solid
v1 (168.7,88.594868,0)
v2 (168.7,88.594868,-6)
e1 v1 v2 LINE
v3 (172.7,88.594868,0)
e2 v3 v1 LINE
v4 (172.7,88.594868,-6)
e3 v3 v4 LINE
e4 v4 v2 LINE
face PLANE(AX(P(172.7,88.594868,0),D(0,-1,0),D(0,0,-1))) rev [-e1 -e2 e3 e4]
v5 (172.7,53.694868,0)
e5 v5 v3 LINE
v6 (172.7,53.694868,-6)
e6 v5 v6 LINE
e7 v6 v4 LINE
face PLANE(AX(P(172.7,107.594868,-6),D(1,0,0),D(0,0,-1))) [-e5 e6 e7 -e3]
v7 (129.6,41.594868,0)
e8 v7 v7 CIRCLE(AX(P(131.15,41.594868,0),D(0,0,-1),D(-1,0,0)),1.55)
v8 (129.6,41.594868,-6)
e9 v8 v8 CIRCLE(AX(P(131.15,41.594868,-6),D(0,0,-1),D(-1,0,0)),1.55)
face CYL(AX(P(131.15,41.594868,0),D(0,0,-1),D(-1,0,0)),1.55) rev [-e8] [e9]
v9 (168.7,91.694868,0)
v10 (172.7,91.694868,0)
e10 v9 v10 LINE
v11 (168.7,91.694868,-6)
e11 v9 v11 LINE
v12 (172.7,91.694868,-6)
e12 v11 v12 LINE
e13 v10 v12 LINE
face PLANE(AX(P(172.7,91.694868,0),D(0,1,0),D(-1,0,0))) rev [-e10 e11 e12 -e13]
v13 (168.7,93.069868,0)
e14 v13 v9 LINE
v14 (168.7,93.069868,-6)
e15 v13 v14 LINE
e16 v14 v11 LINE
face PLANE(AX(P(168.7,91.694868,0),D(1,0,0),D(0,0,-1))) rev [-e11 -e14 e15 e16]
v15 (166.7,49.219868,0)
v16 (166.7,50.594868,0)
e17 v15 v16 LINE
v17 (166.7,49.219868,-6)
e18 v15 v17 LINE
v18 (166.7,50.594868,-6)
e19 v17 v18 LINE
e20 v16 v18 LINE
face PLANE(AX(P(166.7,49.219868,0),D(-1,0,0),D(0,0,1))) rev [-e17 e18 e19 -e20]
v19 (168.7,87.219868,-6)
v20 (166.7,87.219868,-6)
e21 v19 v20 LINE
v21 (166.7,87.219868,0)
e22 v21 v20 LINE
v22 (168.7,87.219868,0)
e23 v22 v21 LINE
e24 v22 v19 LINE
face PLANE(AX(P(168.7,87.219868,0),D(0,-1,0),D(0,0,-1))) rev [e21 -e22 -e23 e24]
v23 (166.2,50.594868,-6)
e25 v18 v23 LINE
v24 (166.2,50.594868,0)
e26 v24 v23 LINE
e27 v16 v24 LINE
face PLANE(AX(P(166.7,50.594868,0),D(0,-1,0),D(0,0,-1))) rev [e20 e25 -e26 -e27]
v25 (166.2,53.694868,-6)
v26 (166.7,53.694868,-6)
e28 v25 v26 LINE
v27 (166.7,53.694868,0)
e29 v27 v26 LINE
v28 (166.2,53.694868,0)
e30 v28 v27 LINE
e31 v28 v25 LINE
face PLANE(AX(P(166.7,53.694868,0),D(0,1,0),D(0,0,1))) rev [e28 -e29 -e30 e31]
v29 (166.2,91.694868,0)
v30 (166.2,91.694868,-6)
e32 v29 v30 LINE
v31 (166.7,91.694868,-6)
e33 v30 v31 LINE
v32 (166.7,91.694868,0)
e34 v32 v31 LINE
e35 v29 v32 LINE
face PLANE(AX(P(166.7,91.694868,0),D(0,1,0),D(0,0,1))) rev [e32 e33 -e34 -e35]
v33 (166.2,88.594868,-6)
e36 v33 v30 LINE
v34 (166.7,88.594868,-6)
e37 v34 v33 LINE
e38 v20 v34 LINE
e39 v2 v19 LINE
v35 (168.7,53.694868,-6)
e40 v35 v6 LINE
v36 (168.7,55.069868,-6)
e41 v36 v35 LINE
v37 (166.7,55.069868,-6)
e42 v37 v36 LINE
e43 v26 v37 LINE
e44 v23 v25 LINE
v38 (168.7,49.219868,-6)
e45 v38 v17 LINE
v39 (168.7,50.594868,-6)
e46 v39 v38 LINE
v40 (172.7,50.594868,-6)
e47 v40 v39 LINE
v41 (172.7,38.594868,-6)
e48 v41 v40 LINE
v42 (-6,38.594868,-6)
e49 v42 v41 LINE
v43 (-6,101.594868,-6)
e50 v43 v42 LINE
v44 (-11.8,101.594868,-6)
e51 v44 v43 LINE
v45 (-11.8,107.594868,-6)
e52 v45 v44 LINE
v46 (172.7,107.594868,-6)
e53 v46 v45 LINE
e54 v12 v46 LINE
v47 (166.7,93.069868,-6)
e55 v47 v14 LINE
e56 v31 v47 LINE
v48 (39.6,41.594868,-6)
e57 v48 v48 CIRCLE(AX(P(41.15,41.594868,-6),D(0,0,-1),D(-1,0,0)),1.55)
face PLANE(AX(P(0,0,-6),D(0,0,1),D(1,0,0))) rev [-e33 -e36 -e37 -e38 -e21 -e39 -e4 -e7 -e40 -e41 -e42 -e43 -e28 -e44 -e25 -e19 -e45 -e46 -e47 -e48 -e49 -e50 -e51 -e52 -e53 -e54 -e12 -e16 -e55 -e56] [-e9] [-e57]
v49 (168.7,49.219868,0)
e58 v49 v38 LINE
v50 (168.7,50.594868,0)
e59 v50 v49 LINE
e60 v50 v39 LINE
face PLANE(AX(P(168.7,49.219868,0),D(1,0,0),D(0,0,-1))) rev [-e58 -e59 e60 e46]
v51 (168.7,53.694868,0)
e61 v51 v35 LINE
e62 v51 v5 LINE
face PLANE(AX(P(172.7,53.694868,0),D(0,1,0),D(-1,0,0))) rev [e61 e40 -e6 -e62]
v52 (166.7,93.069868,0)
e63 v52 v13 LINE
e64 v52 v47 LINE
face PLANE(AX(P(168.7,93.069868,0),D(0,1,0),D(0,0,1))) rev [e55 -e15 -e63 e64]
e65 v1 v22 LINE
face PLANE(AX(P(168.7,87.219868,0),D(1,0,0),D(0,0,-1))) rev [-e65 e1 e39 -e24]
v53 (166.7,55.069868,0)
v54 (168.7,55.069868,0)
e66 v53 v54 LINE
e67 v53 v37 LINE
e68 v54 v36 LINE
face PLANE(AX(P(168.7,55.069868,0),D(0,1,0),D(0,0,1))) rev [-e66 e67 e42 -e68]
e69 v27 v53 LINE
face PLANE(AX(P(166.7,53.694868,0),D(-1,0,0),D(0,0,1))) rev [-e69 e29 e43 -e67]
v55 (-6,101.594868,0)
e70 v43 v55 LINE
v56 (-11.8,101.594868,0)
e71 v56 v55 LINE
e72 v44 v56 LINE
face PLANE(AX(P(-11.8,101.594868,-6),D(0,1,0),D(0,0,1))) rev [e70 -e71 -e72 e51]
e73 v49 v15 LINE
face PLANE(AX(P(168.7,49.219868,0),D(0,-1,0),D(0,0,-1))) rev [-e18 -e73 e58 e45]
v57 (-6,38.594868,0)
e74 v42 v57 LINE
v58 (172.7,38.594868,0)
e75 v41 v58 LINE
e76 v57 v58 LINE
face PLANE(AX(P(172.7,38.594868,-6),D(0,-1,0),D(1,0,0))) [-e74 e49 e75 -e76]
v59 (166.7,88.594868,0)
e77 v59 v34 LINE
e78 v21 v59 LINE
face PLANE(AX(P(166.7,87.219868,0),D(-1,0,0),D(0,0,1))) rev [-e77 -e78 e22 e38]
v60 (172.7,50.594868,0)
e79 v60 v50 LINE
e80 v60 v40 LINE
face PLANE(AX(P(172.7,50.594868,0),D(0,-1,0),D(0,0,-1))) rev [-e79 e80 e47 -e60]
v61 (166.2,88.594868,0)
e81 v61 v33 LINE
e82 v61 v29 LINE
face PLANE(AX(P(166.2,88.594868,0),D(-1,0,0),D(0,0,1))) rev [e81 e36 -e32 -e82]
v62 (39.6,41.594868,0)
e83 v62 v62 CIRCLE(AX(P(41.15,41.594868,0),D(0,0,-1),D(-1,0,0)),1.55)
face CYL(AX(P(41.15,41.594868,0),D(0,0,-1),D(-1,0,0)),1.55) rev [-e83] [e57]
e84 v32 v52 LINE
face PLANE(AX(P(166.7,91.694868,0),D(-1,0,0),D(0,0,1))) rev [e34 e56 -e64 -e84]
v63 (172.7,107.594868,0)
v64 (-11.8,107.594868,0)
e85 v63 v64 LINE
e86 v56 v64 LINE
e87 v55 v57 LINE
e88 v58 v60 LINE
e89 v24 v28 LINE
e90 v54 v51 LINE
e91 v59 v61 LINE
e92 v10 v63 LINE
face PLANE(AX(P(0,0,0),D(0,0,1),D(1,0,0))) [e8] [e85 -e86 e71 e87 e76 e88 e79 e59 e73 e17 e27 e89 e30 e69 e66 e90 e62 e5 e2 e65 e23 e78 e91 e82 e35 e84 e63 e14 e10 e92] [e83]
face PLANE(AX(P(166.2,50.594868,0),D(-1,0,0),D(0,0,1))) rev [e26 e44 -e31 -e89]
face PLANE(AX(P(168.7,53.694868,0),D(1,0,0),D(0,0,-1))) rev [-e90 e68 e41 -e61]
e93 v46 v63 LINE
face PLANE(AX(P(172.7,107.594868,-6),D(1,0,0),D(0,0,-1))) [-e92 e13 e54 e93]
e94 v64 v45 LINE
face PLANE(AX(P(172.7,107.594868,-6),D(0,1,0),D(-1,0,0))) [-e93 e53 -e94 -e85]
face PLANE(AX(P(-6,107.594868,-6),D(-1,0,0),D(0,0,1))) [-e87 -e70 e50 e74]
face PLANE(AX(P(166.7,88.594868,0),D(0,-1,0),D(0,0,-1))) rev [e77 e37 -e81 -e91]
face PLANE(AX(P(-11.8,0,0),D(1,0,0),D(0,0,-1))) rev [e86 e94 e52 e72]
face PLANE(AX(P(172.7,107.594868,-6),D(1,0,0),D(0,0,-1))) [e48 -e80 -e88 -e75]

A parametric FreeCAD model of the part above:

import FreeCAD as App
import Part
import Sketcher
from FreeCAD import Vector
Q = App.Units.Quantity


def add_polygon(sketch, points):
    """Adds a closed chain of lines whose ends are joined by coincident constraints."""
    first, n = sketch.GeometryCount, len(points)
    for a, b in zip(points, points[1:] + points[:1]):
        sketch.addGeometry(Part.LineSegment(App.Vector(*a, 0), App.Vector(*b, 0)), False)
    for i in range(n):
        sketch.addConstraint(Sketcher.Constraint("Coincident", first + i, 2, first + (i + 1) % n, 1))

doc = App.newDocument("Part")
body = doc.addObject("PartDesign::Body", "Body")

# Sketch on XY plane
sketch1 = doc.addObject("Sketcher::SketchObject", "Sketch")
body.addObject(sketch1)
sketch1.AttachmentSupport = (doc.XY_Plane, [""])
sketch1.MapMode = "FlatFace"
add_polygon(sketch1, [(-6, 107.594868), (-6, 38.594868), (172.7, 38.594868), (172.7, 107.594868)])  # lines 0-3
sketch1.addConstraint([
    Sketcher.Constraint("Vertical", 0),
    Sketcher.Constraint("Horizontal", 1),
    Sketcher.Constraint("Vertical", 2),
    Sketcher.Constraint("Horizontal", 3),
    Sketcher.Constraint("DistanceY", 0, 2, 0, 1, Q("69 mm")),
    Sketcher.Constraint("DistanceX", 1, 1, 1, 2, Q("178.7 mm")),
    Sketcher.Constraint("DistanceX", 0, 2, -1, 1, Q("6 mm")),
    Sketcher.Constraint("DistanceY", -1, 1, 0, 2, Q("38.594868 mm")),
])
pad1 = doc.addObject("PartDesign::Pad", "Pad")
body.addObject(pad1)
pad1.Profile = sketch1
pad1.Length = 6
pad1.Reversed = True

# Sketch on XY plane
sketch2 = doc.addObject("Sketcher::SketchObject", "Sketch001")
body.addObject(sketch2)
sketch2.AttachmentSupport = (doc.XY_Plane, [""])
sketch2.MapMode = "FlatFace"
sketch2.AttachmentOffset = App.Placement(Vector(0, 0, -6), App.Rotation())
sketch2.addGeometry([
    Part.Circle(Vector(41.15, 41.594868, 0), Vector(0, 0, 1), 1.55),
    Part.Circle(Vector(131.15, 41.594868, 0), Vector(0, 0, 1), 1.55),
], False)
sketch2.addConstraint([
    Sketcher.Constraint("Equal", 0, 1),
    Sketcher.Constraint("Horizontal", 0, 3, 1, 3),
    Sketcher.Constraint("Diameter", 0, Q("3.1 mm")),
    Sketcher.Constraint("DistanceX", 0, 3, 1, 3, Q("90 mm")),
    Sketcher.Constraint("DistanceX", -1, 1, 0, 3, Q("41.15 mm")),
    Sketcher.Constraint("DistanceY", -1, 1, 0, 3, Q("41.594868 mm")),
])
pocket1 = doc.addObject("PartDesign::Pocket", "Pocket")
body.addObject(pocket1)
pocket1.Profile = sketch2
pocket1.Type = "ThroughAll"
pocket1.Reversed = True

# Sketch on XY plane
sketch3 = doc.addObject("Sketcher::SketchObject", "Sketch002")
body.addObject(sketch3)
sketch3.AttachmentSupport = (doc.XY_Plane, [""])
sketch3.MapMode = "FlatFace"
sketch3.AttachmentOffset = App.Placement(Vector(0, 0, -6), App.Rotation())
add_polygon(sketch3, [(172.7, 53.694868), (172.7, 50.594868), (168.7, 50.594868), (168.7, 49.219868), (166.7, 49.219868), (166.7, 50.594868), (166.2, 50.594868), (166.2, 53.694868), (166.7, 53.694868), (166.7, 55.069868), (168.7, 55.069868), (168.7, 53.694868)])  # lines 0-11
sketch3.addConstraint([
    Sketcher.Constraint("Vertical", 0),
    Sketcher.Constraint("Horizontal", 1),
    Sketcher.Constraint("Vertical", 2),
    Sketcher.Constraint("Horizontal", 3),
    Sketcher.Constraint("Vertical", 4),
    Sketcher.Constraint("Horizontal", 5),
    Sketcher.Constraint("Vertical", 6),
    Sketcher.Constraint("Horizontal", 7),
    Sketcher.Constraint("Vertical", 8),
    Sketcher.Constraint("Horizontal", 9),
    Sketcher.Constraint("Vertical", 10),
    Sketcher.Constraint("Horizontal", 11),
    Sketcher.Constraint("Horizontal", 1, 2, 4, 2),
    Sketcher.Constraint("Horizontal", 7, 2, 10, 2),
    Sketcher.Constraint("Vertical", 4, 2, 7, 2),
    Sketcher.Constraint("Vertical", 2, 2, 9, 2),
    Sketcher.Constraint("Equal", 4, 8),
    Sketcher.Constraint("DistanceX", 1, 2, 1, 1, Q("4 mm")),
    Sketcher.Constraint("DistanceX", 3, 2, 3, 1, Q("2 mm")),
    Sketcher.Constraint("DistanceX", 5, 2, 5, 1, Q("0.5 mm")),
    Sketcher.Constraint("DistanceY", 0, 2, 0, 1, Q("3.1 mm")),
    Sketcher.Constraint("DistanceX", -1, 1, 0, 2, Q("172.7 mm")),
    Sketcher.Constraint("DistanceY", 2, 2, 2, 1, Q("1.375 mm")),
    Sketcher.Constraint("DistanceY", -1, 1, 0, 2, Q("50.594868 mm")),
])
pocket2 = doc.addObject("PartDesign::Pocket", "Pocket001")
body.addObject(pocket2)
pocket2.Profile = sketch3
pocket2.Type = "ThroughAll"
pocket2.Reversed = True
doc.recompute()

linearpattern = doc.addObject("PartDesign::LinearPattern", "LinearPattern")
body.addObject(linearpattern)
linearpattern.Originals = [pocket2]
linearpattern.Direction = (doc.Y_Axis, [""])
linearpattern.Mode = "offset"
linearpattern.Offset = 38
linearpattern.Occurrences = 2
body.Tip = linearpattern

# Sketch on YZ plane
sketch4 = doc.addObject("Sketcher::SketchObject", "Sketch003")
body.addObject(sketch4)
sketch4.AttachmentSupport = (doc.YZ_Plane, [""])
sketch4.MapMode = "FlatFace"
sketch4.AttachmentOffset = App.Placement(Vector(0, 0, -6), App.Rotation())
add_polygon(sketch4, [(107.594868, -6), (101.594868, -6), (101.594868, 0), (107.594868, 0)])  # lines 0-3
sketch4.addConstraint([
    Sketcher.Constraint("Horizontal", 0),
    Sketcher.Constraint("Vertical", 1),
    Sketcher.Constraint("Horizontal", 2),
    Sketcher.Constraint("Vertical", 3),
    Sketcher.Constraint("PointOnObject", 1, 2, -1),
    Sketcher.Constraint("Equal", 2, 1),
    Sketcher.Constraint("DistanceX", 0, 2, 0, 1, Q("6 mm")),
    Sketcher.Constraint("DistanceX", -1, 1, 0, 2, Q("101.594868 mm")),
])
pad2 = doc.addObject("PartDesign::Pad", "Pad001")
body.addObject(pad2)
pad2.Profile = sketch4
pad2.Length = 5.8
pad2.Reversed = True

doc.recompute()
